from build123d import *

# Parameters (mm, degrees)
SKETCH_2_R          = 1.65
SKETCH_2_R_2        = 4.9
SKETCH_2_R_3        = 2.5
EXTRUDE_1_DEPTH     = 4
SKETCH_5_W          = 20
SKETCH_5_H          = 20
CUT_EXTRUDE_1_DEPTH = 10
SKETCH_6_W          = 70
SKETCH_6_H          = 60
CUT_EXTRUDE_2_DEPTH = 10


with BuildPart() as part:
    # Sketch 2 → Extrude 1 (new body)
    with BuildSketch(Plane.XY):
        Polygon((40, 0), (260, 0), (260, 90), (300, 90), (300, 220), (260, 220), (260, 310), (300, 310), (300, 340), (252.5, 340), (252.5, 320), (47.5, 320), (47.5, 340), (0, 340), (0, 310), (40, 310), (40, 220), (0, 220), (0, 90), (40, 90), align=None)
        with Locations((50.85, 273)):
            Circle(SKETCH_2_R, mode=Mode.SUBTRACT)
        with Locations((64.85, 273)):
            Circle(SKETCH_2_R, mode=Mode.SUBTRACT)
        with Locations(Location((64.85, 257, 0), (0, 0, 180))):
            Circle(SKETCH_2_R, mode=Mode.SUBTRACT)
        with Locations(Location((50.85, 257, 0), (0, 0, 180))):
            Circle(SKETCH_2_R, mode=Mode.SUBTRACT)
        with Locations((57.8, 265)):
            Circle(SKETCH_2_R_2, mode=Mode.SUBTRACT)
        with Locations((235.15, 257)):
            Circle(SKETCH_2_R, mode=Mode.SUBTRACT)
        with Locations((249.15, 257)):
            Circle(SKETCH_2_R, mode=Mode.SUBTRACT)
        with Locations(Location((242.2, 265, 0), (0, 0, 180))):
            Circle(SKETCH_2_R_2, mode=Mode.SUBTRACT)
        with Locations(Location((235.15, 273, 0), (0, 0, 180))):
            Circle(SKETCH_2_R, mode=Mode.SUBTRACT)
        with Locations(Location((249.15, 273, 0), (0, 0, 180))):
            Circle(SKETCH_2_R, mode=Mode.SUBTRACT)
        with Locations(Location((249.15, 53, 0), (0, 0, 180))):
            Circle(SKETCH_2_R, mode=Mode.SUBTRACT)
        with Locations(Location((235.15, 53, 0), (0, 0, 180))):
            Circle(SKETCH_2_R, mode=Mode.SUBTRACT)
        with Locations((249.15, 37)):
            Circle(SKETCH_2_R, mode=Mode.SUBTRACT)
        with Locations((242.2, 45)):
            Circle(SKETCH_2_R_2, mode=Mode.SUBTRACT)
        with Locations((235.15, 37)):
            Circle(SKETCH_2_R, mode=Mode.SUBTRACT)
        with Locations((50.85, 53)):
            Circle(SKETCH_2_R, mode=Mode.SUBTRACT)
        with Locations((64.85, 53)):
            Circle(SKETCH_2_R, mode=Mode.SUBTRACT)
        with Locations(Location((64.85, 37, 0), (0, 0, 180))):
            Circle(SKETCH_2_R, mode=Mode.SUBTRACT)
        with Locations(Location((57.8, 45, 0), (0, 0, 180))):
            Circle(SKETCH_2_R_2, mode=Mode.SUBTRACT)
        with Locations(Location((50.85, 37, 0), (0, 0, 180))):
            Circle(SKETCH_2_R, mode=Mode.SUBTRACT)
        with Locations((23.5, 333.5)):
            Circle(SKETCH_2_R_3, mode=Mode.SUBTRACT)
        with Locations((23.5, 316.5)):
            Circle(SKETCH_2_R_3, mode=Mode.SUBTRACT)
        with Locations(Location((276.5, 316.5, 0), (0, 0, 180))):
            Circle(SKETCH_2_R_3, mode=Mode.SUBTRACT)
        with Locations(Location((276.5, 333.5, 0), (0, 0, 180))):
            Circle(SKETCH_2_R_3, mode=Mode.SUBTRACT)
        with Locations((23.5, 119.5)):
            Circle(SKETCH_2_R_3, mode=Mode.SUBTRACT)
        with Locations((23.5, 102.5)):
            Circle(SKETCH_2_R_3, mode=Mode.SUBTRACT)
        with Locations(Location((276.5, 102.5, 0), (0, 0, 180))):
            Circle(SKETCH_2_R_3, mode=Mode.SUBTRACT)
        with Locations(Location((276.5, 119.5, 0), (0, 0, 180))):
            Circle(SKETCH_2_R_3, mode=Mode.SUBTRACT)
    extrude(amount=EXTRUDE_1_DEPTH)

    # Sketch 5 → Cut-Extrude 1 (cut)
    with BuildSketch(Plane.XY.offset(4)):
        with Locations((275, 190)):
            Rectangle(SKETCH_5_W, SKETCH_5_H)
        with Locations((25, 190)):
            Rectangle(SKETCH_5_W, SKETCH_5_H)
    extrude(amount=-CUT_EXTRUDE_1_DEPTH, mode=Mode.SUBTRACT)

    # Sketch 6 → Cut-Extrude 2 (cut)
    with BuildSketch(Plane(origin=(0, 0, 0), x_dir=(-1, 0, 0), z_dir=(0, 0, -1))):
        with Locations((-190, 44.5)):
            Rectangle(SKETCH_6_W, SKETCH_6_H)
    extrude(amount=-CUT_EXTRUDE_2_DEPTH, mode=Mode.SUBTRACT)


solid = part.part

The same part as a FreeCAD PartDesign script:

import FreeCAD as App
import Part
import Sketcher

V = App.Vector
Q = App.Units.Quantity

doc = App.newDocument("Part")
body = doc.addObject("PartDesign::Body", "Body")

# Sketch on XY plane
sketch1 = body.newObject("Sketcher::SketchObject", "Sketch")
sketch1.AttachmentSupport = (doc.getObject("XY_Plane"), [""])
sketch1.MapMode = "FlatFace"
sketch1.addGeometry([
    Part.LineSegment(V(40, 0, 0), V(260, 0, 0)),  # 0
    Part.LineSegment(V(260, 0, 0), V(260, 90, 0)),  # 1
    Part.LineSegment(V(260, 90, 0), V(300, 90, 0)),  # 2
    Part.LineSegment(V(300, 90, 0), V(300, 220, 0)),  # 3
    Part.LineSegment(V(300, 220, 0), V(260, 220, 0)),  # 4
    Part.LineSegment(V(260, 220, 0), V(260, 310, 0)),  # 5
    Part.LineSegment(V(260, 310, 0), V(300, 310, 0)),  # 6
    Part.LineSegment(V(300, 310, 0), V(300, 340, 0)),  # 7
    Part.LineSegment(V(300, 340, 0), V(252.5, 340, 0)),  # 8
    Part.LineSegment(V(252.5, 340, 0), V(252.5, 320, 0)),  # 9
    Part.LineSegment(V(252.5, 320, 0), V(47.5, 320, 0)),  # 10
    Part.LineSegment(V(47.5, 320, 0), V(47.5, 340, 0)),  # 11
    Part.LineSegment(V(47.5, 340, 0), V(0, 340, 0)),  # 12
    Part.LineSegment(V(0, 340, 0), V(0, 310, 0)),  # 13
    Part.LineSegment(V(0, 310, 0), V(40, 310, 0)),  # 14
    Part.LineSegment(V(40, 310, 0), V(40, 220, 0)),  # 15
    Part.LineSegment(V(40, 220, 0), V(0, 220, 0)),  # 16
    Part.LineSegment(V(0, 220, 0), V(0, 90, 0)),  # 17
    Part.LineSegment(V(0, 90, 0), V(40, 90, 0)),  # 18
    Part.LineSegment(V(40, 90, 0), V(40, 0, 0)),  # 19
    Part.Circle(V(50.9, 37, 0), V(0, 0, 1), 1.6),  # 20
    Part.Circle(V(50.9, 53, 0), V(0, 0, 1), 1.6),  # 21
    Part.Circle(V(64.8, 37, 0), V(0, 0, 1), 1.6),  # 22
    Part.Circle(V(57.8, 45, 0), V(0, 0, 1), 4.9),  # 23
    Part.Circle(V(64.8, 53, 0), V(0, 0, 1), 1.6),  # 24
    Part.Circle(V(23.5, 102.5, 0), V(0, 0, 1), 2.5),  # 25
    Part.Circle(V(23.5, 119.5, 0), V(0, 0, 1), 2.5),  # 26
    Part.Circle(V(235.2, 37, 0), V(0, 0, 1), 1.6),  # 27
    Part.Circle(V(235.2, 53, 0), V(0, 0, 1), 1.6),  # 28
    Part.Circle(V(242.2, 45, 0), V(0, 0, 1), 4.9),  # 29
    Part.Circle(V(249.2, 37, 0), V(0, 0, 1), 1.6),  # 30
    Part.Circle(V(249.2, 53, 0), V(0, 0, 1), 1.6),  # 31
    Part.Circle(V(276.5, 102.5, 0), V(0, 0, 1), 2.5),  # 32
    Part.Circle(V(276.5, 119.5, 0), V(0, 0, 1), 2.5),  # 33
    Part.Circle(V(50.9, 257, 0), V(0, 0, 1), 1.6),  # 34
    Part.Circle(V(64.8, 257, 0), V(0, 0, 1), 1.6),  # 35
    Part.Circle(V(50.9, 273, 0), V(0, 0, 1), 1.6),  # 36
    Part.Circle(V(57.8, 265, 0), V(0, 0, 1), 4.9),  # 37
    Part.Circle(V(64.8, 273, 0), V(0, 0, 1), 1.6),  # 38
    Part.Circle(V(23.5, 316.5, 0), V(0, 0, 1), 2.5),  # 39
    Part.Circle(V(23.5, 333.5, 0), V(0, 0, 1), 2.5),  # 40
    Part.Circle(V(235.2, 257, 0), V(0, 0, 1), 1.6),  # 41
    Part.Circle(V(249.2, 257, 0), V(0, 0, 1), 1.6),  # 42
    Part.Circle(V(242.2, 265, 0), V(0, 0, 1), 4.9),  # 43
    Part.Circle(V(235.2, 273, 0), V(0, 0, 1), 1.6),  # 44
    Part.Circle(V(249.2, 273, 0), V(0, 0, 1), 1.6),  # 45
    Part.Circle(V(276.5, 316.5, 0), V(0, 0, 1), 2.5),  # 46
    Part.Circle(V(276.5, 333.5, 0), V(0, 0, 1), 2.5),  # 47
], False)
sketch1.addConstraint([
    Sketcher.Constraint("Coincident", 0, 2, 1, 1),
    Sketcher.Constraint("Coincident", 1, 2, 2, 1),
    Sketcher.Constraint("Coincident", 2, 2, 3, 1),
    Sketcher.Constraint("Coincident", 3, 2, 4, 1),
    Sketcher.Constraint("Coincident", 4, 2, 5, 1),
    Sketcher.Constraint("Coincident", 5, 2, 6, 1),
    Sketcher.Constraint("Coincident", 6, 2, 7, 1),
    Sketcher.Constraint("Coincident", 7, 2, 8, 1),
    Sketcher.Constraint("Coincident", 8, 2, 9, 1),
    Sketcher.Constraint("Coincident", 9, 2, 10, 1),
    Sketcher.Constraint("Coincident", 10, 2, 11, 1),
    Sketcher.Constraint("Coincident", 11, 2, 12, 1),
    Sketcher.Constraint("Coincident", 12, 2, 13, 1),
    Sketcher.Constraint("Coincident", 13, 2, 14, 1),
    Sketcher.Constraint("Coincident", 14, 2, 15, 1),
    Sketcher.Constraint("Coincident", 15, 2, 16, 1),
    Sketcher.Constraint("Coincident", 16, 2, 17, 1),
    Sketcher.Constraint("Coincident", 17, 2, 18, 1),
    Sketcher.Constraint("Coincident", 18, 2, 19, 1),
    Sketcher.Constraint("Coincident", 19, 2, 0, 1),
    Sketcher.Constraint("Horizontal", 0),
    Sketcher.Constraint("Vertical", 1),
    Sketcher.Constraint("Horizontal", 2),
    Sketcher.Constraint("Vertical", 3),
    Sketcher.Constraint("Horizontal", 4),
    Sketcher.Constraint("Vertical", 5),
    Sketcher.Constraint("Horizontal", 6),
    Sketcher.Constraint("Vertical", 7),
    Sketcher.Constraint("Horizontal", 8),
    Sketcher.Constraint("Vertical", 9),
    Sketcher.Constraint("Horizontal", 10),
    Sketcher.Constraint("Vertical", 11),
    Sketcher.Constraint("Horizontal", 12),
    Sketcher.Constraint("Vertical", 13),
    Sketcher.Constraint("Horizontal", 14),
    Sketcher.Constraint("Vertical", 15),
    Sketcher.Constraint("Horizontal", 16),
    Sketcher.Constraint("Vertical", 17),
    Sketcher.Constraint("Horizontal", 18),
    Sketcher.Constraint("Vertical", 19),
    Sketcher.Constraint("Equal", 20, 21),
    Sketcher.Constraint("Equal", 21, 22),
    Sketcher.Constraint("Equal", 22, 24),
    Sketcher.Constraint("Equal", 25, 26),
    Sketcher.Constraint("Equal", 24, 27),
    Sketcher.Constraint("Equal", 27, 28),
    Sketcher.Constraint("Equal", 23, 29),
    Sketcher.Constraint("Equal", 28, 30),
    Sketcher.Constraint("Equal", 30, 31),
    Sketcher.Constraint("Equal", 26, 32),
    Sketcher.Constraint("Equal", 32, 33),
    Sketcher.Constraint("Equal", 31, 34),
    Sketcher.Constraint("Equal", 34, 35),
    Sketcher.Constraint("Equal", 35, 36),
    Sketcher.Constraint("Equal", 29, 37),
    Sketcher.Constraint("Equal", 36, 38),
    Sketcher.Constraint("Equal", 33, 39),
    Sketcher.Constraint("Equal", 39, 40),
    Sketcher.Constraint("Equal", 38, 41),
    Sketcher.Constraint("Equal", 41, 42),
    Sketcher.Constraint("Equal", 37, 43),
    Sketcher.Constraint("Equal", 42, 44),
    Sketcher.Constraint("Equal", 44, 45),
    Sketcher.Constraint("Equal", 40, 46),
    Sketcher.Constraint("Equal", 46, 47),
    Sketcher.Constraint("PointOnObject", 0, 2, -1),
    Sketcher.Constraint("PointOnObject", 12, 2, -2),
    Sketcher.Constraint("PointOnObject", 16, 2, -2),
    Sketcher.Constraint("Horizontal", 20, 3, 22, 3),
    Sketcher.Constraint("Horizontal", 21, 3, 24, 3),
    Sketcher.Constraint("Horizontal", 22, 3, 27, 3),
    Sketcher.Constraint("Horizontal", 24, 3, 28, 3),
    Sketcher.Constraint("Horizontal", 23, 3, 29, 3),
    Sketcher.Constraint("Horizontal", 27, 3, 30, 3),
    Sketcher.Constraint("Horizontal", 28, 3, 31, 3),
    Sketcher.Constraint("Horizontal", 25, 3, 32, 3),
    Sketcher.Constraint("Horizontal", 26, 3, 33, 3),
    Sketcher.Constraint("Horizontal", 34, 3, 35, 3),
    Sketcher.Constraint("Horizontal", 36, 3, 38, 3),
    Sketcher.Constraint("Horizontal", 35, 3, 41, 3),
    Sketcher.Constraint("Horizontal", 41, 3, 42, 3),
    Sketcher.Constraint("Horizontal", 37, 3, 43, 3),
    Sketcher.Constraint("Horizontal", 38, 3, 44, 3),
    Sketcher.Constraint("Horizontal", 44, 3, 45, 3),
    Sketcher.Constraint("Horizontal", 39, 3, 46, 3),
    Sketcher.Constraint("Horizontal", 40, 3, 47, 3),
    Sketcher.Constraint("Horizontal", 8, 2, 11, 2),
    Sketcher.Constraint("Horizontal", 6, 2, 13, 2),
    Sketcher.Constraint("Horizontal", 4, 2, 15, 2),
    Sketcher.Constraint("Horizontal", 2, 2, 17, 2),
    Sketcher.Constraint("Vertical", 20, 3, 21, 3),
    Sketcher.Constraint("Vertical", 22, 3, 24, 3),
    Sketcher.Constraint("Vertical", 25, 3, 26, 3),
    Sketcher.Constraint("Vertical", 27, 3, 28, 3),
    Sketcher.Constraint("Vertical", 30, 3, 31, 3),
    Sketcher.Constraint("Vertical", 32, 3, 33, 3),
    Sketcher.Constraint("Vertical", 21, 3, 34, 3),
    Sketcher.Constraint("Vertical", 24, 3, 35, 3),
    Sketcher.Constraint("Vertical", 34, 3, 36, 3),
    Sketcher.Constraint("Vertical", 23, 3, 37, 3),
    Sketcher.Constraint("Vertical", 35, 3, 38, 3),
    Sketcher.Constraint("Vertical", 26, 3, 39, 3),
    Sketcher.Constraint("Vertical", 39, 3, 40, 3),
    Sketcher.Constraint("Vertical", 28, 3, 41, 3),
    Sketcher.Constraint("Vertical", 31, 3, 42, 3),
    Sketcher.Constraint("Vertical", 29, 3, 43, 3),
    Sketcher.Constraint("Vertical", 41, 3, 44, 3),
    Sketcher.Constraint("Vertical", 42, 3, 45, 3),
    Sketcher.Constraint("Vertical", 33, 3, 46, 3),
    Sketcher.Constraint("Vertical", 46, 3, 47, 3),
    Sketcher.Constraint("Vertical", 1, 2, 4, 2),
    Sketcher.Constraint("Vertical", 3, 2, 6, 2),
    Sketcher.Constraint("Vertical", 15, 2, 18, 2),
    Sketcher.Constraint("Equal", 8, 12),
    Sketcher.Constraint("Equal", 6, 14),
    Sketcher.Constraint("Equal", 1, 5),
    Sketcher.Constraint("Diameter", 25, Q("5 mm")),
    Sketcher.Constraint("Diameter", 20, Q("3.3 mm")),
    Sketcher.Constraint("Diameter", 23, Q("9.8 mm")),
    Sketcher.Constraint("DistanceX", 0, 1, 0, 2, Q("220 mm")),
    Sketcher.Constraint("DistanceX", 2, 1, 2, 2, Q("40 mm")),
    Sketcher.Constraint("DistanceX", 10, 2, 10, 1, Q("205 mm")),
    Sketcher.Constraint("DistanceY", 1, 1, 1, 2, Q("90 mm")),
    Sketcher.Constraint("DistanceY", 3, 1, 3, 2, Q("130 mm")),
    Sketcher.Constraint("DistanceY", 7, 1, 7, 2, Q("30 mm")),
    Sketcher.Constraint("DistanceY", 9, 2, 9, 1, Q("20 mm")),
    Sketcher.Constraint("DistanceY", -1, 1, 20, 3, Q("37 mm")),
    Sketcher.Constraint("DistanceY", -1, 1, 21, 3, Q("53 mm")),
    Sketcher.Constraint("DistanceY", -1, 1, 23, 3, Q("45 mm")),
    Sketcher.Constraint("DistanceY", -1, 1, 34, 3, Q("257 mm")),
    Sketcher.Constraint("DistanceY", -1, 1, 36, 3, Q("273 mm")),
    Sketcher.Constraint("DistanceY", -1, 1, 37, 3, Q("265 mm")),
    Sketcher.Constraint("DistanceX", 20, 3, 22, 3, Q("14 mm")),
    Sketcher.Constraint("DistanceY", 25, 3, 26, 3, Q("17 mm")),
    Sketcher.Constraint("DistanceX", 27, 3, 30, 3, Q("14 mm")),
    Sketcher.Constraint("DistanceY", 39, 3, 40, 3, Q("17 mm")),
    Sketcher.Constraint("DistanceX", 8, 2, 47, 3, Q("24 mm")),
    Sketcher.Constraint("DistanceX", 39, 3, 10, 2, Q("24 mm")),
    Sketcher.Constraint("DistanceX", -1, 1, 23, 3, Q("57.8 mm")),
    Sketcher.Constraint("DistanceY", -1, 1, 25, 3, Q("102.5 mm")),
    Sketcher.Constraint("DistanceX", -1, 1, 29, 3, Q("242.2 mm")),
    Sketcher.Constraint("DistanceY", -1, 1, 39, 3, Q("316.5 mm")),
    Sketcher.Constraint("DistanceX", 22, 3, 27, 3, Q("170.3 mm")),
    Sketcher.Constraint("DistanceX", -1, 1, 20, 3, Q("50.85 mm")),
])
pad1 = body.newObject("PartDesign::Pad", "Pad")
pad1.Profile = sketch1
pad1.Length = 4

# Sketch on XY plane
sketch2 = body.newObject("Sketcher::SketchObject", "Sketch001")
sketch2.AttachmentSupport = (doc.getObject("XY_Plane"), [""])
sketch2.MapMode = "FlatFace"
sketch2.AttachmentOffset = App.Placement(V(0, 0, 4), App.Rotation())
sketch2.addGeometry([
    Part.LineSegment(V(265, 200, 0), V(265, 180, 0)),  # 0
    Part.LineSegment(V(265, 180, 0), V(285, 180, 0)),  # 1
    Part.LineSegment(V(285, 180, 0), V(285, 200, 0)),  # 2
    Part.LineSegment(V(285, 200, 0), V(265, 200, 0)),  # 3
    Part.LineSegment(V(15, 200, 0), V(15, 180, 0)),  # 4
    Part.LineSegment(V(15, 180, 0), V(35, 180, 0)),  # 5
    Part.LineSegment(V(35, 180, 0), V(35, 200, 0)),  # 6
    Part.LineSegment(V(35, 200, 0), V(15, 200, 0)),  # 7
], False)
sketch2.addConstraint([
    Sketcher.Constraint("Coincident", 0, 2, 1, 1),
    Sketcher.Constraint("Coincident", 1, 2, 2, 1),
    Sketcher.Constraint("Coincident", 2, 2, 3, 1),
    Sketcher.Constraint("Coincident", 3, 2, 0, 1),
    Sketcher.Constraint("Coincident", 4, 2, 5, 1),
    Sketcher.Constraint("Coincident", 5, 2, 6, 1),
    Sketcher.Constraint("Coincident", 6, 2, 7, 1),
    Sketcher.Constraint("Coincident", 7, 2, 4, 1),
    Sketcher.Constraint("Vertical", 0),
    Sketcher.Constraint("Horizontal", 1),
    Sketcher.Constraint("Vertical", 2),
    Sketcher.Constraint("Horizontal", 3),
    Sketcher.Constraint("Vertical", 4),
    Sketcher.Constraint("Horizontal", 5),
    Sketcher.Constraint("Vertical", 6),
    Sketcher.Constraint("Horizontal", 7),
    Sketcher.Constraint("Horizontal", 1, 2, 4, 2),
    Sketcher.Constraint("Horizontal", 3, 2, 6, 2),
    Sketcher.Constraint("Equal", 3, 5),
    Sketcher.Constraint("Equal", 7, 0),
    Sketcher.Constraint("DistanceX", 1, 1, 1, 2, Q("20 mm")),
    Sketcher.Constraint("DistanceX", -1, 1, 0, 2, Q("265 mm")),
    Sketcher.Constraint("DistanceY", -1, 1, 0, 2, Q("180 mm")),
    Sketcher.Constraint("DistanceX", -1, 1, 4, 2, Q("15 mm")),
])
pocket1 = body.newObject("PartDesign::Pocket", "Pocket")
pocket1.Profile = sketch2
pocket1.Length = 10

# Sketch on XY plane
sketch3 = body.newObject("Sketcher::SketchObject", "Sketch002")
sketch3.AttachmentSupport = (doc.getObject("XY_Plane"), [""])
sketch3.MapMode = "FlatFace"
sketch3.addGeometry([
    Part.LineSegment(V(225, 74, 0), V(225, 14, 0)),
    Part.LineSegment(V(225, 14, 0), V(155, 14, 0)),
    Part.LineSegment(V(155, 14, 0), V(155, 74, 0)),
    Part.LineSegment(V(155, 74, 0), V(225, 74, 0)),
], False)
sketch3.addConstraint([
    Sketcher.Constraint("Coincident", 0, 2, 1, 1),
    Sketcher.Constraint("Coincident", 1, 2, 2, 1),
    Sketcher.Constraint("Coincident", 2, 2, 3, 1),
    Sketcher.Constraint("Coincident", 3, 2, 0, 1),
    Sketcher.Constraint("Vertical", 0),
    Sketcher.Constraint("Horizontal", 1),
    Sketcher.Constraint("Vertical", 2),
    Sketcher.Constraint("Horizontal", 3),
    Sketcher.Constraint("DistanceX", 1, 2, 1, 1, Q("70 mm")),
    Sketcher.Constraint("DistanceY", 0, 2, 0, 1, Q("60 mm")),
    Sketcher.Constraint("DistanceX", -1, 1, 0, 2, Q("225 mm")),
    Sketcher.Constraint("DistanceY", -1, 1, 0, 2, Q("14.5 mm")),
])
pocket2 = body.newObject("PartDesign::Pocket", "Pocket001")
pocket2.Profile = sketch3
pocket2.Length = 10
pocket2.Reversed = True

doc.recompute()
